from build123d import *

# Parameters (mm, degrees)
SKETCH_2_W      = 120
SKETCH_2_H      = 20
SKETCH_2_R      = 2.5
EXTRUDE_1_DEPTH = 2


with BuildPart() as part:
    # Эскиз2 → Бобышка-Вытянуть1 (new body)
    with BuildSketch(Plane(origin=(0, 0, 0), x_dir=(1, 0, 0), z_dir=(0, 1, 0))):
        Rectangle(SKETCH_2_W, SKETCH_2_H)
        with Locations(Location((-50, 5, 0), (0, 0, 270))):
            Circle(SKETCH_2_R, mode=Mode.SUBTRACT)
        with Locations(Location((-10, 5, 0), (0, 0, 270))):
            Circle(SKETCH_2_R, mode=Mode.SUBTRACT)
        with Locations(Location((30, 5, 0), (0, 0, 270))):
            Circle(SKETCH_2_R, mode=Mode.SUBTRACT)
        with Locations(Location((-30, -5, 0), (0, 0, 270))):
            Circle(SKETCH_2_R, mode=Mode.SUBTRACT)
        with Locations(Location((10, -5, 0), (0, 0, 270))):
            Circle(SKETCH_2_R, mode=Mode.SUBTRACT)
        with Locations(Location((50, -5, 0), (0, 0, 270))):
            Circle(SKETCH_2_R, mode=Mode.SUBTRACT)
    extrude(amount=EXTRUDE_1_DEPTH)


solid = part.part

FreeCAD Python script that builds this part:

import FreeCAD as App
import Part
import Sketcher
from FreeCAD import Vector
Q = App.Units.Quantity

doc = App.newDocument("Part")
body = doc.addObject("PartDesign::Body", "Body")

# Sketch on XZ plane
sketch1 = body.newObject("Sketcher::SketchObject", "Sketch")
sketch1.AttachmentSupport = (doc.getObject("XZ_Plane"), [""])
sketch1.MapMode = "FlatFace"
sketch1.addGeometry([
    Part.LineSegment(Vector(-60, -10, 0), Vector(-60, 10, 0)),  # 0
    Part.LineSegment(Vector(-60, 10, 0), Vector(60, 10, 0)),  # 1
    Part.LineSegment(Vector(60, 10, 0), Vector(60, -10, 0)),  # 2
    Part.LineSegment(Vector(60, -10, 0), Vector(-60, -10, 0)),  # 3
    Part.Circle(Vector(-30, 5, 0), Vector(0, 0, 1), 2.5),  # 4
    Part.Circle(Vector(10, 5, 0), Vector(0, 0, 1), 2.5),  # 5
    Part.Circle(Vector(50, 5, 0), Vector(0, 0, 1), 2.5),  # 6
    Part.Circle(Vector(-50, -5, 0), Vector(0, 0, 1), 2.5),  # 7
    Part.Circle(Vector(-10, -5, 0), Vector(0, 0, 1), 2.5),  # 8
    Part.Circle(Vector(30, -5, 0), Vector(0, 0, 1), 2.5),  # 9
], False)
sketch1.addConstraint([
    Sketcher.Constraint("Coincident", 0, 2, 1, 1),
    Sketcher.Constraint("Coincident", 1, 2, 2, 1),
    Sketcher.Constraint("Coincident", 2, 2, 3, 1),
    Sketcher.Constraint("Coincident", 3, 2, 0, 1),
    Sketcher.Constraint("Vertical", 0),
    Sketcher.Constraint("Horizontal", 1),
    Sketcher.Constraint("Vertical", 2),
    Sketcher.Constraint("Horizontal", 3),
    Sketcher.Constraint("Equal", 4, 5),
    Sketcher.Constraint("Equal", 5, 6),
    Sketcher.Constraint("Equal", 6, 7),
    Sketcher.Constraint("Equal", 7, 8),
    Sketcher.Constraint("Equal", 8, 9),
    Sketcher.Constraint("Symmetric", 6, 3, 7, 3, -1, 1),
    Sketcher.Constraint("Symmetric", 5, 3, 8, 3, -1, 1),
    Sketcher.Constraint("Symmetric", 4, 3, 9, 3, -1, 1),
    Sketcher.Constraint("Symmetric", 0, 2, 2, 2, -1, 1),
    Sketcher.Constraint("Horizontal", 4, 3, 5, 3),
    Sketcher.Constraint("Horizontal", 5, 3, 6, 3),
    Sketcher.Constraint("Diameter", 4, Q("5 mm")),
    Sketcher.Constraint("DistanceX", 1, 1, 1, 2, Q("120 mm")),
    Sketcher.Constraint("DistanceY", 0, 1, 0, 2, Q("20 mm")),
    Sketcher.Constraint("DistanceX", 4, 3, -1, 1, Q("30 mm")),
    Sketcher.Constraint("DistanceY", -1, 1, 4, 3, Q("5 mm")),
    Sketcher.Constraint("DistanceX", -1, 1, 5, 3, Q("10 mm")),
    Sketcher.Constraint("DistanceX", -1, 1, 6, 3, Q("50 mm")),
])
pad1 = body.newObject("PartDesign::Pad", "Pad")
pad1.Profile = sketch1
pad1.Length = 2
pad1.Reversed = True

doc.recompute()
